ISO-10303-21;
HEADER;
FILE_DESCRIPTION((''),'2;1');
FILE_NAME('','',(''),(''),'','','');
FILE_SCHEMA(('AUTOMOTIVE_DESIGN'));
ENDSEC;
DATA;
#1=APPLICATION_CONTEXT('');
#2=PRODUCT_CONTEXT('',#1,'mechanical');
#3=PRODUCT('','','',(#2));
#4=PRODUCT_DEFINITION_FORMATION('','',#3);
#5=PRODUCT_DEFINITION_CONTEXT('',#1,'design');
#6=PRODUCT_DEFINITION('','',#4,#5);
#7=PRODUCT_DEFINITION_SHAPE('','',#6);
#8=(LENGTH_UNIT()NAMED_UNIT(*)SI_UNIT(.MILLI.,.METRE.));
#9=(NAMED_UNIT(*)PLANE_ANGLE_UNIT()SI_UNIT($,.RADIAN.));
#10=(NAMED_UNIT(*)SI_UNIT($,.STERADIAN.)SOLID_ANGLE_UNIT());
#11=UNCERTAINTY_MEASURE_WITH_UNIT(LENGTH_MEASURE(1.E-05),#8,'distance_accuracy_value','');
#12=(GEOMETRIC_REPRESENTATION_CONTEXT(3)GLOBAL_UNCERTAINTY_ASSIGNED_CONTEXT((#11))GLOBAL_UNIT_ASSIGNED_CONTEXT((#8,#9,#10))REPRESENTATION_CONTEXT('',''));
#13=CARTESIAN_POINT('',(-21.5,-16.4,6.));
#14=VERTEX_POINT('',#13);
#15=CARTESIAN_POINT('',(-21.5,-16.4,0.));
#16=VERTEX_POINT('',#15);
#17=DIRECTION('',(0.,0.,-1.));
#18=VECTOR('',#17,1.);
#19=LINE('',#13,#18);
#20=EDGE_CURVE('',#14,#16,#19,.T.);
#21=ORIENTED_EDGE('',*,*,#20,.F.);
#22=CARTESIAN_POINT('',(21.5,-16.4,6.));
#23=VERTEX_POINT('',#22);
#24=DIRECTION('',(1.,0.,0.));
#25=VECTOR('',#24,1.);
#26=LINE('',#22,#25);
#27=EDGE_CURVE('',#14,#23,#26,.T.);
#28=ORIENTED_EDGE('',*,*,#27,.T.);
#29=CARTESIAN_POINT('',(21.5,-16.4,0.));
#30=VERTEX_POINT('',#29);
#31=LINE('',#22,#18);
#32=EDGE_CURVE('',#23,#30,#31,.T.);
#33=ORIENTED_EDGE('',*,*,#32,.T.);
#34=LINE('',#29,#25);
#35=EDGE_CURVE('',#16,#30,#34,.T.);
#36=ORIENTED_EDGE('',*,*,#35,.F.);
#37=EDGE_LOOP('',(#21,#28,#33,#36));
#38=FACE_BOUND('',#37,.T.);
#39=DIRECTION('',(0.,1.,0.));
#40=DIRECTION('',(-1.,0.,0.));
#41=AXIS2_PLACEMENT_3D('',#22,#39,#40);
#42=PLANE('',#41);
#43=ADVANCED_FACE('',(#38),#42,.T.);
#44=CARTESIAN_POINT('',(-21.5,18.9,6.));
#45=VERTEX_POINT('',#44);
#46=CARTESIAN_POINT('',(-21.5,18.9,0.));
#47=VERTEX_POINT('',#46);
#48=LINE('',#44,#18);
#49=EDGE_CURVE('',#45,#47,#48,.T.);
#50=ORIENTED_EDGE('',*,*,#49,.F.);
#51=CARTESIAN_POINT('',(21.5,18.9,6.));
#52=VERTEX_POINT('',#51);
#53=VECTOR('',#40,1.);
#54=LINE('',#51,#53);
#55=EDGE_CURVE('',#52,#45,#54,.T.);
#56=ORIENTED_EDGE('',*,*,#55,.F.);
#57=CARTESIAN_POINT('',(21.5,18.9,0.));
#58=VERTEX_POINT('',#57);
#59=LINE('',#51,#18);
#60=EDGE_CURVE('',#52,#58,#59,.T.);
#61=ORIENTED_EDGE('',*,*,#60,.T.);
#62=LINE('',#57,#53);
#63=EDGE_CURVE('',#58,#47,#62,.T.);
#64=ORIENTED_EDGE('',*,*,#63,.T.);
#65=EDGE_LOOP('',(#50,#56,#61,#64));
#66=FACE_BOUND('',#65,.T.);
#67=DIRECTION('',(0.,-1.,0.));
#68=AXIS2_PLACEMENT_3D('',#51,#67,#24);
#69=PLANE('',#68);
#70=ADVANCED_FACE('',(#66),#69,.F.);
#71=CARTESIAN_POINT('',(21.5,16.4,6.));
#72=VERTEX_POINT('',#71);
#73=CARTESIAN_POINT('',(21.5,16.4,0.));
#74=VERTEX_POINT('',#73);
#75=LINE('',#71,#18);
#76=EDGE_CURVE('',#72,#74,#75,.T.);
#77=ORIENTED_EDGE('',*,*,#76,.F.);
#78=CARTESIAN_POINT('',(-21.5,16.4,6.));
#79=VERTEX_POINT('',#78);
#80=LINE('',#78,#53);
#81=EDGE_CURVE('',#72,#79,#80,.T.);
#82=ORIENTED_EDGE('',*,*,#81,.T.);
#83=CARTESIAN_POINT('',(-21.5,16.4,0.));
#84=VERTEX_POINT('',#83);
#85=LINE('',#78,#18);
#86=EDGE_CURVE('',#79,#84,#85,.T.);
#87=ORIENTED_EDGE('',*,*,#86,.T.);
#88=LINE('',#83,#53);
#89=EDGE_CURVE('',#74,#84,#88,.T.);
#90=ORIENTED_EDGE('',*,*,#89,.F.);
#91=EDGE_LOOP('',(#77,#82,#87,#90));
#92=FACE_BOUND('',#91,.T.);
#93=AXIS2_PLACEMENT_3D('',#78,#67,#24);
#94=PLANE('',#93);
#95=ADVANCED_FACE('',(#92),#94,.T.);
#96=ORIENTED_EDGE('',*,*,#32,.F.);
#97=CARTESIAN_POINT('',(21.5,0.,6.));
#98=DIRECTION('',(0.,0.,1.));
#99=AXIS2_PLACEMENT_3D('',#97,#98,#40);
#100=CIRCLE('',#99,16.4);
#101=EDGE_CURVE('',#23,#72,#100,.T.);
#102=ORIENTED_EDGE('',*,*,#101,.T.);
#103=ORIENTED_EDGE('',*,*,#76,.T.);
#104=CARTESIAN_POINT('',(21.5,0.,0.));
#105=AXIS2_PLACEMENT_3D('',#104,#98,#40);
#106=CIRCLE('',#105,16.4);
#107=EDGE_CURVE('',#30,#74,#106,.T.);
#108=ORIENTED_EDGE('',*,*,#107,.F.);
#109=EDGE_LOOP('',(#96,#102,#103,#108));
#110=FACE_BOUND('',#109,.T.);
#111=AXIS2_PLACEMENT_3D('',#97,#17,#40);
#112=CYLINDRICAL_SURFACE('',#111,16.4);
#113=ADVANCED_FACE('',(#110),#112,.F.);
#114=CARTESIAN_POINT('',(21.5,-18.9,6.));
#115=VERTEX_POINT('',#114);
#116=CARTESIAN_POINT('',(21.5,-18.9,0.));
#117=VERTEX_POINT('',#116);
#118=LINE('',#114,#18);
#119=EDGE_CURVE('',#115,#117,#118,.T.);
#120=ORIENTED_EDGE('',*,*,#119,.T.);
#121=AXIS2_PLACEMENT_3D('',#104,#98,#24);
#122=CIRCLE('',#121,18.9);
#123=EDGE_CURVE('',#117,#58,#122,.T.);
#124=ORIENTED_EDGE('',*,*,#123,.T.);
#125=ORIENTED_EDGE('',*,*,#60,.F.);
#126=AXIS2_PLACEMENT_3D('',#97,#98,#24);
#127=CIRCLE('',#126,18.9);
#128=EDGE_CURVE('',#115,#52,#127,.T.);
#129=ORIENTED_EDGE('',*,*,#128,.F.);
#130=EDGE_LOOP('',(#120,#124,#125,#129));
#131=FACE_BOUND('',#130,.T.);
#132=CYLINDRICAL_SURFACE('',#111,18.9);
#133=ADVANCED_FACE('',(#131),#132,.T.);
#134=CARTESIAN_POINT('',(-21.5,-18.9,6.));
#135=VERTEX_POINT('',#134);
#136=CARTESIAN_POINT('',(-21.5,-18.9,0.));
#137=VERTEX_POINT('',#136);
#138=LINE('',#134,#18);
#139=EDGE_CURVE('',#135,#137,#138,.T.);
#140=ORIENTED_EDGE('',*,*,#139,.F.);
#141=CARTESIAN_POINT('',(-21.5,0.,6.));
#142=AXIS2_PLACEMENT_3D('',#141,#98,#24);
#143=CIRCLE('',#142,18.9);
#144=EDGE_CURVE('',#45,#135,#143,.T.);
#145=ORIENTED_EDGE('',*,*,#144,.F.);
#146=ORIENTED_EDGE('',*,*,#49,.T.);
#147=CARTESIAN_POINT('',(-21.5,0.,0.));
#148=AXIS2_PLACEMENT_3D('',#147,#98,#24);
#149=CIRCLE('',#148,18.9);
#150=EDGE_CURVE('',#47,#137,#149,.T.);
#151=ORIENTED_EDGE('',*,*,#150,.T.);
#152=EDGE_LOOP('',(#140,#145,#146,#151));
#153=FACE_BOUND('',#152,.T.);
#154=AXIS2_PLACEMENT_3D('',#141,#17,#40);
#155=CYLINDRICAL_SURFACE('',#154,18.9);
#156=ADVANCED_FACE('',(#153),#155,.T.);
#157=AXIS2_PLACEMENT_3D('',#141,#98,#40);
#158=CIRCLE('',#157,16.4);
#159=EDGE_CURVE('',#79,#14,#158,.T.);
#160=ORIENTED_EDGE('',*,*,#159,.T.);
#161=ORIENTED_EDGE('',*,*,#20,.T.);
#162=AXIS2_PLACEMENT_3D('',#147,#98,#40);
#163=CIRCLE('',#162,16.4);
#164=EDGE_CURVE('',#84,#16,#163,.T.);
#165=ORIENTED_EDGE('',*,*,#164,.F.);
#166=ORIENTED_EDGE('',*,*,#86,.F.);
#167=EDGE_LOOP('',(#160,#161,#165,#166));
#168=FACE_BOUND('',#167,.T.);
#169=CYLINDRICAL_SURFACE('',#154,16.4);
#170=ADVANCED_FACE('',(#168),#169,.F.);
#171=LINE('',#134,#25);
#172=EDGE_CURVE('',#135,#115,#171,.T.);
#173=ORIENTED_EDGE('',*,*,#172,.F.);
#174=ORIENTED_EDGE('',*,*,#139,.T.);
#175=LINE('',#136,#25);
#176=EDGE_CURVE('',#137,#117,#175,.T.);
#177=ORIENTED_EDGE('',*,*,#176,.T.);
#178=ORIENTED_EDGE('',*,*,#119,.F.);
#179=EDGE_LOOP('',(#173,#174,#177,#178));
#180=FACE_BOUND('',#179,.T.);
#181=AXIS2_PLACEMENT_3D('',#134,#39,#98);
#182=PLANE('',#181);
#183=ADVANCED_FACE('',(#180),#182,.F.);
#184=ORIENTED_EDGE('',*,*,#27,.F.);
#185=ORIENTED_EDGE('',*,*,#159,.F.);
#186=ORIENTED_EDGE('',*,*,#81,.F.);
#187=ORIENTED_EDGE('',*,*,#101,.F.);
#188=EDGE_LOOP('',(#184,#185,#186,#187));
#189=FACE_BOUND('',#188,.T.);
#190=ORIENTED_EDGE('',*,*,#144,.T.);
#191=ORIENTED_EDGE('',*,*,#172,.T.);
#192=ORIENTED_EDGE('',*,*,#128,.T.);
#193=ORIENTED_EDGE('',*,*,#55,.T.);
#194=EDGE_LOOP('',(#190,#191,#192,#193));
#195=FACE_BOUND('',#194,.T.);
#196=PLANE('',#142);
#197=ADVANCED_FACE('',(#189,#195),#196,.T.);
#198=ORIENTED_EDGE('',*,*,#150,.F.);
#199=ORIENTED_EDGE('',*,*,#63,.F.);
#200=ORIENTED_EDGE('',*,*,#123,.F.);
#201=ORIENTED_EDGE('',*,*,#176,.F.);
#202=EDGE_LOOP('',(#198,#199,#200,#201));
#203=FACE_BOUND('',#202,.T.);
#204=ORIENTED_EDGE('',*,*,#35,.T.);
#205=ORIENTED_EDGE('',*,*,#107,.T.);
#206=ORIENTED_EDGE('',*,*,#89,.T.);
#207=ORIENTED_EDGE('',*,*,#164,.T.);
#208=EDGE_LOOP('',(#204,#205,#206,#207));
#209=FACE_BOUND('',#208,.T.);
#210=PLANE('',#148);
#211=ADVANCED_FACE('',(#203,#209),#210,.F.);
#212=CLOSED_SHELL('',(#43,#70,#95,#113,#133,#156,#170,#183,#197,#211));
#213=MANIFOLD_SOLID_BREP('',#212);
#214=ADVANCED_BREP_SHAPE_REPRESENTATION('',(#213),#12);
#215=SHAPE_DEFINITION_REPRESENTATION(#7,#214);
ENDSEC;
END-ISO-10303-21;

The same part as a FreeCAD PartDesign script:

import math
import FreeCAD as App
import Part
import Sketcher
from FreeCAD import Vector

doc = App.newDocument("Part")
body = doc.addObject("PartDesign::Body", "Body")

# Sketch on XY plane
sketch1 = body.newObject("Sketcher::SketchObject", "Sketch")
sketch1.AttachmentSupport = (doc.getObject("XY_Plane"), [""])
sketch1.MapMode = "FlatFace"
sketch1.addGeometry([
    Part.LineSegment(Vector(-22, -19, 0), Vector(22, -19, 0)),  # 0
    Part.ArcOfCircle(Part.Circle(Vector(22, 0, 0), Vector(0, 0, 1), 19), math.radians(-90), math.radians(90)),  # 1
    Part.LineSegment(Vector(22, 19, 0), Vector(-22, 19, 0)),  # 2
    Part.ArcOfCircle(Part.Circle(Vector(-22, 0, 0), Vector(0, 0, 1), 19), math.radians(90), math.radians(270)),  # 3
    Part.ArcOfCircle(Part.Circle(Vector(22, 0, 0), Vector(0, 0, 1), 16), math.radians(-90), math.radians(90)),  # 4
    Part.LineSegment(Vector(22, -16, 0), Vector(-22, -16, 0)),  # 5
    Part.ArcOfCircle(Part.Circle(Vector(-22, 0, 0), Vector(0, 0, 1), 16), math.radians(90), math.radians(270)),  # 6
    Part.LineSegment(Vector(-22, 16, 0), Vector(22, 16, 0)),  # 7
], False)
sketch1.addConstraint([
    Sketcher.Constraint("Tangent", 0, 2, 1, 1),
    Sketcher.Constraint("Tangent", 1, 2, 2, 1),
    Sketcher.Constraint("Tangent", 2, 2, 3, 1),
    Sketcher.Constraint("Tangent", 3, 2, 0, 1),
    Sketcher.Constraint("Tangent", 4, 1, 5, 1),
    Sketcher.Constraint("Tangent", 5, 2, 6, 2),
    Sketcher.Constraint("Tangent", 6, 1, 7, 1),
    Sketcher.Constraint("Tangent", 7, 2, 4, 2),
    Sketcher.Constraint("Horizontal", 0),
    Sketcher.Constraint("Horizontal", 2),
    Sketcher.Constraint("Horizontal", 5),
    Sketcher.Constraint("Horizontal", 7),
    Sketcher.Constraint("Coincident", 4, 3, 1, 3),
    Sketcher.Constraint("Symmetric", 1, 3, 3, 3, -1, 1),
    Sketcher.Constraint("Vertical", 6, 3, 2, 2),
    Sketcher.Constraint("Radius", 1, 18.9),
    Sketcher.Constraint("Radius", 4, 16.4),
    Sketcher.Constraint("DistanceX", 0, 1, 0, 2, 43.0),
])
pad1 = body.newObject("PartDesign::Pad", "Pad")
pad1.Profile = sketch1
pad1.Length = 6

doc.recompute()
